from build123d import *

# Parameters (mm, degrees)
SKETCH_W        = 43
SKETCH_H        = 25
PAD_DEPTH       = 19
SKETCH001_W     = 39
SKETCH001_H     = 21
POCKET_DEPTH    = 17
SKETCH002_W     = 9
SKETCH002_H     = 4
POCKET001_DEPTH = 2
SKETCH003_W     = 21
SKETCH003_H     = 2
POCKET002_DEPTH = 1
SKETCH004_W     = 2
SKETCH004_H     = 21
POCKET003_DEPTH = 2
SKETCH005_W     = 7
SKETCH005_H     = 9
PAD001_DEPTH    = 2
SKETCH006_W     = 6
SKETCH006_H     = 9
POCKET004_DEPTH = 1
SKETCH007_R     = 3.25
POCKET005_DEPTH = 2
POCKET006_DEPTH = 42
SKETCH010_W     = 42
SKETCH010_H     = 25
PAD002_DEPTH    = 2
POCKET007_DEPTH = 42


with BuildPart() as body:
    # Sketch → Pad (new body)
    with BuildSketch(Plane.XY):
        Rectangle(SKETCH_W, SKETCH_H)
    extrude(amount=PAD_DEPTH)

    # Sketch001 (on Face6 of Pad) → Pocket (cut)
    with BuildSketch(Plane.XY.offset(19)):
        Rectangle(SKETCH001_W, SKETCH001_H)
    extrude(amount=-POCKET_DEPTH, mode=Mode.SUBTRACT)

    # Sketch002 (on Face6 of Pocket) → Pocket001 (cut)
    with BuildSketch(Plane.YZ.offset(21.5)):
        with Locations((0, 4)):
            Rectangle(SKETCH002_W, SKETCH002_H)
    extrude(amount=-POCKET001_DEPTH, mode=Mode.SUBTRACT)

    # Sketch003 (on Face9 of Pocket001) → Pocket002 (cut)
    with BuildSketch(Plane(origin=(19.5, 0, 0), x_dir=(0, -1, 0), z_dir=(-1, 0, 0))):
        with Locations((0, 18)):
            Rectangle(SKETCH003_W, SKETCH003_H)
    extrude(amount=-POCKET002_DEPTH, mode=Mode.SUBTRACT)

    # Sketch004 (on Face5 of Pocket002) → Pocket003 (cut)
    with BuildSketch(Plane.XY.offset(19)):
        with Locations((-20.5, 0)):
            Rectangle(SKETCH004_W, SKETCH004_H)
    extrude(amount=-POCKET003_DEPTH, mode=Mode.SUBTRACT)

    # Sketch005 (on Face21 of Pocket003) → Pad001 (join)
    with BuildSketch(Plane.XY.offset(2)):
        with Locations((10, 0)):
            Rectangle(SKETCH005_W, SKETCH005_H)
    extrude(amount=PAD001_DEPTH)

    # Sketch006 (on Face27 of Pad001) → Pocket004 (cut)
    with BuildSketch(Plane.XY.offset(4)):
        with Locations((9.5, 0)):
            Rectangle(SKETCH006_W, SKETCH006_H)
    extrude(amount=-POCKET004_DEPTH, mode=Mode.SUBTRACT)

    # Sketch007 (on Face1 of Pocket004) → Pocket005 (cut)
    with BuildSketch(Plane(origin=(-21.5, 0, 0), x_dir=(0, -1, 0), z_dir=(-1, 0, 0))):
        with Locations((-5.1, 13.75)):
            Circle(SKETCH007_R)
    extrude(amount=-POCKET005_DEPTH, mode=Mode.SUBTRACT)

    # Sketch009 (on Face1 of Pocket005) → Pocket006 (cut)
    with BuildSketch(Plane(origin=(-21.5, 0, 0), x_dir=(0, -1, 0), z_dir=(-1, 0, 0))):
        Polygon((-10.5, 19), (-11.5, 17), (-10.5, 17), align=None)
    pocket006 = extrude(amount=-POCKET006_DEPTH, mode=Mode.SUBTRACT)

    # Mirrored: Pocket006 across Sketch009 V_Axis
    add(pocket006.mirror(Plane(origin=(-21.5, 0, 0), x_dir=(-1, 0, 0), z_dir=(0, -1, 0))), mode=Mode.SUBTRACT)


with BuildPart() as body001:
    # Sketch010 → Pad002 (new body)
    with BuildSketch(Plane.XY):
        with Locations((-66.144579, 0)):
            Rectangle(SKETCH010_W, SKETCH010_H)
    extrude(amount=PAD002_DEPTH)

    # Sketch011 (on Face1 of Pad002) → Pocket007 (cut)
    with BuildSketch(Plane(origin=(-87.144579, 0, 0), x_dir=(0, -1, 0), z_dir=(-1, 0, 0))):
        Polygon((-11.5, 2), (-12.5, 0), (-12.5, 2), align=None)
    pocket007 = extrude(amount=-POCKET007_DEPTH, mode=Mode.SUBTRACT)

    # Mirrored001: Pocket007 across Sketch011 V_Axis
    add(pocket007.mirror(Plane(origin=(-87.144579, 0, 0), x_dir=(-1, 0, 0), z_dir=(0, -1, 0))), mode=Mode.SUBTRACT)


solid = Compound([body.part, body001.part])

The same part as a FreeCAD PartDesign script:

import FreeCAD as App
import Part
import Sketcher
Q = App.Units.Quantity


def add_polygon(sketch, points):
    """Adds a closed chain of lines whose ends are joined by coincident constraints."""
    first, n = sketch.GeometryCount, len(points)
    for a, b in zip(points, points[1:] + points[:1]):
        sketch.addGeometry(Part.LineSegment(App.Vector(*a, 0), App.Vector(*b, 0)), False)
    for i in range(n):
        sketch.addConstraint(Sketcher.Constraint("Coincident", first + i, 2, first + (i + 1) % n, 1))

doc = App.newDocument("Part")
body = doc.addObject("PartDesign::Body", "Body")

sketch1 = body.newObject("Sketcher::SketchObject", "Sketch")
sketch1.AttachmentSupport = (doc.getObject("XY_Plane"), [""])
sketch1.MapMode = "FlatFace"
add_polygon(sketch1, [(-22, 12), (-22, -12), (22, -12), (22, 12)])
sketch1.addConstraint([
    Sketcher.Constraint("Vertical", 0),
    Sketcher.Constraint("Horizontal", 1),
    Sketcher.Constraint("Vertical", 2),
    Sketcher.Constraint("Horizontal", 3),
    Sketcher.Constraint("Symmetric", 0, 2, 2, 2, -1, 1),
    Sketcher.Constraint("DistanceX", 1, 1, 1, 2, Q("43 mm")),
    Sketcher.Constraint("DistanceY", 0, 2, 0, 1, Q("25 mm")),
])
pad1 = body.newObject("PartDesign::Pad", "Pad")
pad1.Profile = sketch1
pad1.Length = 19

sketch2 = body.newObject("Sketcher::SketchObject", "Sketch001")
sketch2.AttachmentSupport = (doc.getObject("XY_Plane"), [""])
sketch2.MapMode = "FlatFace"
sketch2.AttachmentOffset = App.Placement(App.Vector(0, 0, 19), App.Rotation())
add_polygon(sketch2, [(-20, 10), (-20, -10), (20, -10), (20, 10)])
sketch2.addConstraint([
    Sketcher.Constraint("Vertical", 0),
    Sketcher.Constraint("Horizontal", 1),
    Sketcher.Constraint("Vertical", 2),
    Sketcher.Constraint("Horizontal", 3),
    Sketcher.Constraint("Symmetric", 0, 2, 2, 2, -1, 1),
    Sketcher.Constraint("DistanceX", 1, 1, 1, 2, Q("39 mm")),
    Sketcher.Constraint("DistanceY", 0, 2, 0, 1, Q("21 mm")),
])
pocket1 = body.newObject("PartDesign::Pocket", "Pocket")
pocket1.Profile = sketch2
pocket1.Length = 17

sketch3 = body.newObject("Sketcher::SketchObject", "Sketch002")
sketch3.AttachmentSupport = (doc.getObject("YZ_Plane"), [""])
sketch3.MapMode = "FlatFace"
sketch3.AttachmentOffset = App.Placement(App.Vector(0, 0, 21.5), App.Rotation())
add_polygon(sketch3, [(-4.5, 6), (-4.5, 2), (4.5, 2), (4.5, 6)])
sketch3.addConstraint([
    Sketcher.Constraint("Vertical", 0),
    Sketcher.Constraint("Horizontal", 1),
    Sketcher.Constraint("Vertical", 2),
    Sketcher.Constraint("Horizontal", 3),
    Sketcher.Constraint("DistanceX", 1, 1, 1, 2, Q("9 mm")),
    Sketcher.Constraint("DistanceY", 0, 2, 0, 1, Q("4 mm")),
    Sketcher.Constraint("DistanceY", -1, 1, 0, 2, Q("2 mm")),
    Sketcher.Constraint("DistanceX", 0, 2, -1, 1, Q("4.5 mm")),
])
pocket2 = body.newObject("PartDesign::Pocket", "Pocket001")
pocket2.Profile = sketch3
pocket2.Length = 2

sketch4 = body.newObject("Sketcher::SketchObject", "Sketch003")
sketch4.AttachmentSupport = (doc.getObject("YZ_Plane"), [""])
sketch4.MapMode = "FlatFace"
sketch4.AttachmentOffset = App.Placement(App.Vector(0, 0, 19.5), App.Rotation())
add_polygon(sketch4, [(10.5, 19), (10.5, 17), (-10.5, 17), (-10.5, 19)])
sketch4.addConstraint([
    Sketcher.Constraint("Vertical", 0),
    Sketcher.Constraint("Horizontal", 1),
    Sketcher.Constraint("Vertical", 2),
    Sketcher.Constraint("Horizontal", 3),
    Sketcher.Constraint("DistanceX", 1, 2, 1, 1, Q("21 mm")),
    Sketcher.Constraint("DistanceY", 0, 2, 0, 1, Q("2 mm")),
    Sketcher.Constraint("DistanceY", -1, 1, 0, 2, Q("17 mm")),
    Sketcher.Constraint("DistanceX", -1, 1, 0, 2, Q("10.5 mm")),
])
pocket3 = body.newObject("PartDesign::Pocket", "Pocket002")
pocket3.Profile = sketch4
pocket3.Length = 1
pocket3.Reversed = True

sketch5 = body.newObject("Sketcher::SketchObject", "Sketch004")
sketch5.AttachmentSupport = (doc.getObject("XY_Plane"), [""])
sketch5.MapMode = "FlatFace"
sketch5.AttachmentOffset = App.Placement(App.Vector(0, 0, 19), App.Rotation())
add_polygon(sketch5, [(-21.5, 10.5), (-21.5, -10.5), (-19.5, -10.5), (-19.5, 10.5)])
sketch5.addConstraint([
    Sketcher.Constraint("Vertical", 0),
    Sketcher.Constraint("Horizontal", 1),
    Sketcher.Constraint("Vertical", 2),
    Sketcher.Constraint("Horizontal", 3),
    Sketcher.Constraint("DistanceX", 1, 1, 1, 2, Q("2 mm")),
    Sketcher.Constraint("DistanceY", 0, 2, 0, 1, Q("21 mm")),
    Sketcher.Constraint("DistanceX", 0, 2, -1, 1, Q("21.5 mm")),
    Sketcher.Constraint("DistanceY", 0, 2, -1, 1, Q("10.5 mm")),
])
pocket4 = body.newObject("PartDesign::Pocket", "Pocket003")
pocket4.Profile = sketch5
pocket4.Length = 2

sketch6 = body.newObject("Sketcher::SketchObject", "Sketch005")
sketch6.AttachmentSupport = (doc.getObject("XY_Plane"), [""])
sketch6.MapMode = "FlatFace"
sketch6.AttachmentOffset = App.Placement(App.Vector(0, 0, 2), App.Rotation())
add_polygon(sketch6, [(6, 4), (6, -4), (14, -4), (14, 4)])
sketch6.addConstraint([
    Sketcher.Constraint("Vertical", 0),
    Sketcher.Constraint("Horizontal", 1),
    Sketcher.Constraint("Vertical", 2),
    Sketcher.Constraint("Horizontal", 3),
    Sketcher.Constraint("DistanceX", 1, 1, 1, 2, Q("7 mm")),
    Sketcher.Constraint("DistanceY", 0, 2, 0, 1, Q("9 mm")),
    Sketcher.Constraint("DistanceX", -1, 1, 0, 2, Q("6.5 mm")),
    Sketcher.Constraint("DistanceY", 0, 2, -1, 1, Q("4.5 mm")),
])
pad2 = body.newObject("PartDesign::Pad", "Pad001")
pad2.Profile = sketch6
pad2.Length = 2

sketch7 = body.newObject("Sketcher::SketchObject", "Sketch006")
sketch7.AttachmentSupport = (doc.getObject("XY_Plane"), [""])
sketch7.MapMode = "FlatFace"
sketch7.AttachmentOffset = App.Placement(App.Vector(0, 0, 4), App.Rotation())
add_polygon(sketch7, [(6, 4), (6, -4), (12, -4), (12, 4)])
sketch7.addConstraint([
    Sketcher.Constraint("Vertical", 0),
    Sketcher.Constraint("Horizontal", 1),
    Sketcher.Constraint("Vertical", 2),
    Sketcher.Constraint("Horizontal", 3),
    Sketcher.Constraint("DistanceX", 1, 1, 1, 2, Q("6 mm")),
    Sketcher.Constraint("DistanceY", 0, 2, 0, 1, Q("9 mm")),
    Sketcher.Constraint("DistanceX", -1, 1, 0, 2, Q("6.5 mm")),
    Sketcher.Constraint("DistanceY", 0, 2, -1, 1, Q("4.5 mm")),
])
pocket5 = body.newObject("PartDesign::Pocket", "Pocket004")
pocket5.Profile = sketch7
pocket5.Length = 1

sketch8 = body.newObject("Sketcher::SketchObject", "Sketch007")
sketch8.AttachmentSupport = (doc.getObject("YZ_Plane"), [""])
sketch8.MapMode = "FlatFace"
sketch8.AttachmentOffset = App.Placement(App.Vector(0, 0, -21.5), App.Rotation())
sketch8.addGeometry(Part.Circle(App.Vector(5.1, 13.8, 0), App.Vector(0, 0, 1), 3.2), False)
sketch8.addConstraint([
    Sketcher.Constraint("Diameter", 0, Q("6.5 mm")),
    Sketcher.Constraint("DistanceX", -1, 1, 0, 3, Q("5.1 mm")),
    Sketcher.Constraint("DistanceY", -1, 1, 0, 3, Q("13.75 mm")),
])
pocket6 = body.newObject("PartDesign::Pocket", "Pocket005")
pocket6.Profile = sketch8
pocket6.Length = 2
pocket6.Reversed = True

sketch9 = body.newObject("Sketcher::SketchObject", "Sketch008")
sketch9.AttachmentSupport = (doc.getObject("YZ_Plane"), [""])
sketch9.MapMode = "FlatFace"
sketch9.AttachmentOffset = App.Placement(App.Vector(0, 0, -21.5), App.Rotation())
add_polygon(sketch9, [(10.5, 19), (11.5, 17), (10.5, 17)])
sketch9.addConstraint([
    Sketcher.Constraint("Horizontal", 1),
    Sketcher.Constraint("Vertical", 2),
    Sketcher.Constraint("DistanceX", 1, 2, 1, 1, Q("1 mm")),
    Sketcher.Constraint("DistanceY", 2, 1, 2, 2, Q("2 mm")),
    Sketcher.Constraint("DistanceY", -1, 1, 0, 2, Q("17 mm")),
    Sketcher.Constraint("DistanceX", -1, 1, 0, 2, Q("11.5 mm")),
])
pocket7 = body.newObject("PartDesign::Pocket", "Pocket006")
pocket7.Profile = sketch9
pocket7.Length = 42
pocket7.Reversed = True
doc.recompute()

mirrored = body.newObject("PartDesign::Mirrored", "Mirrored")
mirrored.Originals = [pocket7]
mirrored.MirrorPlane = (doc.getObject("XZ_Plane"), [""])
body.Tip = mirrored
body2 = doc.addObject("PartDesign::Body", "Body001")

sketch10 = body2.newObject("Sketcher::SketchObject", "Sketch009")
sketch10.AttachmentSupport = (doc.getObject("XY_Plane001"), [""])
sketch10.MapMode = "FlatFace"
add_polygon(sketch10, [(-87, 12), (-87, -12), (-45, -12), (-45, 12)])
sketch10.addConstraint([
    Sketcher.Constraint("Vertical", 0),
    Sketcher.Constraint("Horizontal", 1),
    Sketcher.Constraint("Vertical", 2),
    Sketcher.Constraint("Horizontal", 3),
    Sketcher.Constraint("DistanceX", 1, 1, 1, 2, Q("42 mm")),
    Sketcher.Constraint("DistanceY", 0, 2, 0, 1, Q("25 mm")),
    Sketcher.Constraint("DistanceY", 0, 2, -1, 1, Q("12.5 mm")),
    Sketcher.Constraint("DistanceX", 0, 2, -1, 1, Q("87.144579 mm")),
])
pad3 = body2.newObject("PartDesign::Pad", "Pad002")
pad3.Profile = sketch10
pad3.Length = 2

sketch11 = body2.newObject("Sketcher::SketchObject", "Sketch010")
sketch11.AttachmentSupport = (doc.getObject("YZ_Plane001"), [""])
sketch11.MapMode = "FlatFace"
sketch11.AttachmentOffset = App.Placement(App.Vector(0, 0, -87.144579), App.Rotation())
add_polygon(sketch11, [(12.5, 0), (11.5, 2), (12.5, 2)])
sketch11.addConstraint([
    Sketcher.Constraint("Horizontal", 1),
    Sketcher.Constraint("Vertical", 2),
    Sketcher.Constraint("PointOnObject", 2, 2, -1),
    Sketcher.Constraint("DistanceX", 1, 1, 1, 2, Q("1 mm")),
    Sketcher.Constraint("DistanceY", 2, 2, 2, 1, Q("2 mm")),
    Sketcher.Constraint("DistanceX", -1, 1, 0, 2, Q("11.5 mm")),
])
pocket8 = body2.newObject("PartDesign::Pocket", "Pocket007")
pocket8.Profile = sketch11
pocket8.Length = 42
pocket8.Reversed = True
doc.recompute()

mirrored2 = body2.newObject("PartDesign::Mirrored", "Mirrored001")
mirrored2.Originals = [pocket8]
mirrored2.MirrorPlane = (doc.getObject("XZ_Plane001"), [""])
body2.Tip = mirrored2

doc.recompute()
